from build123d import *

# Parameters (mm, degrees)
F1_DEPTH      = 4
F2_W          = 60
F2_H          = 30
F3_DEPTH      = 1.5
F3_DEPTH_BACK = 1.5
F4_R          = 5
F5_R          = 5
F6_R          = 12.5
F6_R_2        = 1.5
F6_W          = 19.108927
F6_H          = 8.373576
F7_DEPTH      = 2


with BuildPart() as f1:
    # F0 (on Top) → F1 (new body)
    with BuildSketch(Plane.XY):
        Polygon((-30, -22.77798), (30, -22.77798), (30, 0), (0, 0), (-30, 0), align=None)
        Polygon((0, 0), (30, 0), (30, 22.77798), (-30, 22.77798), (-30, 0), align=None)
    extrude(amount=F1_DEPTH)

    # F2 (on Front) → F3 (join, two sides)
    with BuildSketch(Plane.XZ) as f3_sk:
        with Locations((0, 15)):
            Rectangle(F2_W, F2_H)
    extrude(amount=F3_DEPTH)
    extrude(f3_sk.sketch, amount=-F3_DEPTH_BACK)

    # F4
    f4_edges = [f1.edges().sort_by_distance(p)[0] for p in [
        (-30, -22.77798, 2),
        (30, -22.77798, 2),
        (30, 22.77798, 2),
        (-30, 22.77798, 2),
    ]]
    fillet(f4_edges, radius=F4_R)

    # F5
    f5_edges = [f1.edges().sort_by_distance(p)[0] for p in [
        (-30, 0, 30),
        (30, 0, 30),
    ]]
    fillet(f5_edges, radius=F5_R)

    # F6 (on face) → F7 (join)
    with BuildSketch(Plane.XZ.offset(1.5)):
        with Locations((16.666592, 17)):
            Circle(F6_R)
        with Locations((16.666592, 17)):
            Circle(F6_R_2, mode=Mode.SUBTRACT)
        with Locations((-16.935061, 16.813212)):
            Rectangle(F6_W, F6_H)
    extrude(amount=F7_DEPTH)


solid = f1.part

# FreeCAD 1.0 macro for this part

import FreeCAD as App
import Part
import Sketcher
Q = App.Units.Quantity


def edges_at(feature, points):
    """Names of the edges that pass closest to the given points."""
    edges = feature.Shape.Edges
    near = lambda p: min(range(len(edges)), key=lambda i: edges[i].distToShape(Part.Vertex(*p))[0])
    return sorted({f"Edge{near(p) + 1}" for p in points})


def add_polygon(sketch, points):
    """Adds a closed chain of lines whose ends are joined by coincident constraints."""
    first, n = sketch.GeometryCount, len(points)
    for a, b in zip(points, points[1:] + points[:1]):
        sketch.addGeometry(Part.LineSegment(App.Vector(*a, 0), App.Vector(*b, 0)), False)
    for i in range(n):
        sketch.addConstraint(Sketcher.Constraint("Coincident", first + i, 2, first + (i + 1) % n, 1))

doc = App.newDocument("Part")
body = doc.addObject("PartDesign::Body", "Body")

# Sketch on XY plane
sketch1 = doc.addObject("Sketcher::SketchObject", "Sketch")
body.addObject(sketch1)
sketch1.AttachmentSupport = (doc.XY_Plane, [""])
sketch1.MapMode = "FlatFace"
add_polygon(sketch1, [(-30, -23), (30, -23), (30, 23), (-30, 23)])  # lines 0-3
sketch1.addConstraint([
    Sketcher.Constraint("Horizontal", 0),
    Sketcher.Constraint("Vertical", 1),
    Sketcher.Constraint("Horizontal", 2),
    Sketcher.Constraint("Vertical", 3),
    Sketcher.Constraint("Symmetric", 0, 2, 2, 2, -1, 1),
    Sketcher.Constraint("DistanceX", 0, 1, 0, 2, Q("60 mm")),
    Sketcher.Constraint("DistanceY", 1, 1, 1, 2, Q("45.55596 mm")),
])
pad1 = doc.addObject("PartDesign::Pad", "Pad")
body.addObject(pad1)
pad1.Profile = sketch1
pad1.Length = 4

# Sketch on XZ plane
sketch2 = doc.addObject("Sketcher::SketchObject", "Sketch001")
body.addObject(sketch2)
sketch2.AttachmentSupport = (doc.XZ_Plane, [""])
sketch2.MapMode = "FlatFace"
add_polygon(sketch2, [(-30, 30), (-30, 0), (30, 0), (30, 30)])  # lines 0-3
sketch2.addConstraint([
    Sketcher.Constraint("Vertical", 0),
    Sketcher.Constraint("Horizontal", 1),
    Sketcher.Constraint("Vertical", 2),
    Sketcher.Constraint("Horizontal", 3),
    Sketcher.Constraint("Symmetric", 0, 2, 1, 2, -1, 1),
    Sketcher.Constraint("DistanceX", 1, 1, 1, 2, Q("60 mm")),
    Sketcher.Constraint("DistanceY", 0, 2, 0, 1, Q("30 mm")),
])
pad2 = doc.addObject("PartDesign::Pad", "Pad001")
body.addObject(pad2)
pad2.Profile = sketch2
pad2.Type = "TwoLengths"
pad2.Length = 1.5
pad2.Length2 = 1.5
doc.recompute()

fillet = doc.addObject("PartDesign::Fillet", "Fillet")
body.addObject(fillet)
fillet.Base = (pad2, edges_at(pad2, [
    (-30, -22.778, 2),
    (30, -22.778, 2),
    (30, 22.778, 2),
    (-30, 22.778, 2),
]))
fillet.Radius = 5
doc.recompute()

fillet2 = doc.addObject("PartDesign::Fillet", "Fillet001")
body.addObject(fillet2)
fillet2.Base = (fillet, edges_at(fillet, [(-30, 0, 30), (30, 0, 30)]))
fillet2.Radius = 5

# Sketch on XZ plane
sketch3 = doc.addObject("Sketcher::SketchObject", "Sketch002")
body.addObject(sketch3)
sketch3.AttachmentSupport = (doc.XZ_Plane, [""])
sketch3.MapMode = "FlatFace"
sketch3.AttachmentOffset = App.Placement(App.Vector(0, 0, 1.5), App.Rotation())
sketch3.addGeometry(Part.Circle(App.Vector(16.7, 17, 0), App.Vector(0, 0, 1), 12.5), False)  # 0
sketch3.addGeometry(Part.Circle(App.Vector(16.7, 17, 0), App.Vector(0, 0, 1), 1.5), False)  # 1
add_polygon(sketch3, [(-26.5, 21), (-26.5, 12.6), (-7.4, 12.6), (-7.4, 21)])  # lines 2-5
sketch3.addConstraint([
    Sketcher.Constraint("Vertical", 2),
    Sketcher.Constraint("Horizontal", 3),
    Sketcher.Constraint("Vertical", 4),
    Sketcher.Constraint("Horizontal", 5),
    Sketcher.Constraint("Coincident", 1, 3, 0, 3),
    Sketcher.Constraint("Diameter", 0, Q("25 mm")),
    Sketcher.Constraint("Diameter", 1, Q("3 mm")),
    Sketcher.Constraint("DistanceY", -1, 1, 0, 3, Q("17 mm")),
    Sketcher.Constraint("DistanceY", -1, 1, 4, 2, Q("21 mm")),
    Sketcher.Constraint("DistanceX", 3, 1, 3, 2, Q("19.108927 mm")),
    Sketcher.Constraint("DistanceY", 2, 2, 2, 1, Q("8.373576 mm")),
    Sketcher.Constraint("DistanceX", 3, 2, 0, 3, Q("24.04719 mm")),
    Sketcher.Constraint("DistanceX", -1, 1, 0, 3, Q("16.666592 mm")),
])
pad3 = doc.addObject("PartDesign::Pad", "Pad002")
body.addObject(pad3)
pad3.Profile = sketch3
pad3.Length = 2

doc.recompute()
